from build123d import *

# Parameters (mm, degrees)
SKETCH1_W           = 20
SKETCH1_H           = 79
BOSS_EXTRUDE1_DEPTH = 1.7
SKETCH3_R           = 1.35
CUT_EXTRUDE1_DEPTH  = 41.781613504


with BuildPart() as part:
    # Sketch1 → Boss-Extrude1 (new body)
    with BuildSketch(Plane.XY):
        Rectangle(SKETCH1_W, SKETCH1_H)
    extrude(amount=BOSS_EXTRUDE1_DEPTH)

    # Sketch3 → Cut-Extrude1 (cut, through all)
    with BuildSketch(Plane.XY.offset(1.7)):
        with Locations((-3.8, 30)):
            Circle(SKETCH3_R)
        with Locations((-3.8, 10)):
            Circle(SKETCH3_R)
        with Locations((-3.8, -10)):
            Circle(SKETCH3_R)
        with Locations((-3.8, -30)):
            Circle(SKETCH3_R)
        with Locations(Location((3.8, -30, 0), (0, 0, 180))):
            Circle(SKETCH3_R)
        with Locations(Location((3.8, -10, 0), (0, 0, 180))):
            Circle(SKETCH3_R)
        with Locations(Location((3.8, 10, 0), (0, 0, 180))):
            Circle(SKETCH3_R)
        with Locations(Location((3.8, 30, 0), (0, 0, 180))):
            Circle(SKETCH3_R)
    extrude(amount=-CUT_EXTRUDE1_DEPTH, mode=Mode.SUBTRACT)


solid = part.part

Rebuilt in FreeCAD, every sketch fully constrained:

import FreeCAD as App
import Part
import Sketcher

V = App.Vector


def add_polygon(sketch, points):
    """Adds a closed chain of lines whose ends are joined by coincident constraints."""
    first, n = sketch.GeometryCount, len(points)
    for a, b in zip(points, points[1:] + points[:1]):
        sketch.addGeometry(Part.LineSegment(App.Vector(*a, 0), App.Vector(*b, 0)), False)
    for i in range(n):
        sketch.addConstraint(Sketcher.Constraint("Coincident", first + i, 2, first + (i + 1) % n, 1))

doc = App.newDocument("Part")
body = doc.addObject("PartDesign::Body", "Body")

# Sketch on XY plane
sketch1 = doc.addObject("Sketcher::SketchObject", "Sketch")
body.addObject(sketch1)
sketch1.AttachmentSupport = (doc.XY_Plane, [""])
sketch1.MapMode = "FlatFace"
add_polygon(sketch1, [(-10, 40), (-10, -40), (10, -40), (10, 40)])  # lines 0-3
sketch1.addConstraint(Sketcher.Constraint("Vertical", 0))
sketch1.addConstraint(Sketcher.Constraint("Horizontal", 1))
sketch1.addConstraint(Sketcher.Constraint("Vertical", 2))
sketch1.addConstraint(Sketcher.Constraint("Horizontal", 3))
sketch1.addConstraint(Sketcher.Constraint("Symmetric", 0, 2, 2, 2, -1, 1))
sketch1.addConstraint(Sketcher.Constraint("DistanceX", 1, 1, 1, 2, 20.0))
sketch1.addConstraint(Sketcher.Constraint("DistanceY", 0, 2, 0, 1, 79.0))
pad1 = doc.addObject("PartDesign::Pad", "Pad")
body.addObject(pad1)
pad1.Profile = sketch1
pad1.Length = 1.7

# Sketch on XY plane
sketch2 = doc.addObject("Sketcher::SketchObject", "Sketch001")
body.addObject(sketch2)
sketch2.AttachmentSupport = (doc.XY_Plane, [""])
sketch2.MapMode = "FlatFace"
sketch2.AttachmentOffset = App.Placement(V(0, 0, 1.7), App.Rotation())
sketch2.addGeometry(Part.Circle(V(-3.8, 30, 0), V(0, 0, 1), 1.4), False)
sketch2.addGeometry(Part.Circle(V(-3.8, 10, 0), V(0, 0, 1), 1.4), False)
sketch2.addGeometry(Part.Circle(V(-3.8, -10, 0), V(0, 0, 1), 1.4), False)
sketch2.addGeometry(Part.Circle(V(-3.8, -30, 0), V(0, 0, 1), 1.4), False)
sketch2.addGeometry(Part.Circle(V(3.8, -30, 0), V(0, 0, 1), 1.4), False)
sketch2.addGeometry(Part.Circle(V(3.8, -10, 0), V(0, 0, 1), 1.4), False)
sketch2.addGeometry(Part.Circle(V(3.8, 10, 0), V(0, 0, 1), 1.4), False)
sketch2.addGeometry(Part.Circle(V(3.8, 30, 0), V(0, 0, 1), 1.4), False)
sketch2.addConstraint(Sketcher.Constraint("Equal", 0, 1))
sketch2.addConstraint(Sketcher.Constraint("Equal", 1, 2))
sketch2.addConstraint(Sketcher.Constraint("Equal", 2, 3))
sketch2.addConstraint(Sketcher.Constraint("Equal", 3, 4))
sketch2.addConstraint(Sketcher.Constraint("Equal", 4, 5))
sketch2.addConstraint(Sketcher.Constraint("Equal", 5, 6))
sketch2.addConstraint(Sketcher.Constraint("Equal", 6, 7))
sketch2.addConstraint(Sketcher.Constraint("Symmetric", 0, 3, 4, 3, -1, 1))
sketch2.addConstraint(Sketcher.Constraint("Symmetric", 1, 3, 5, 3, -1, 1))
sketch2.addConstraint(Sketcher.Constraint("Symmetric", 2, 3, 6, 3, -1, 1))
sketch2.addConstraint(Sketcher.Constraint("Symmetric", 3, 3, 7, 3, -1, 1))
sketch2.addConstraint(Sketcher.Constraint("Symmetric", 3, 3, 4, 3, -2))
sketch2.addConstraint(Sketcher.Constraint("Symmetric", 2, 3, 5, 3, -2))
sketch2.addConstraint(Sketcher.Constraint("Vertical", 0, 3, 1, 3))
sketch2.addConstraint(Sketcher.Constraint("Diameter", 0, 2.7))
sketch2.addConstraint(Sketcher.Constraint("DistanceY", -1, 1, 0, 3, 30.0))
sketch2.addConstraint(Sketcher.Constraint("DistanceY", -1, 1, 1, 3, 10.0))
sketch2.addConstraint(Sketcher.Constraint("DistanceX", 0, 3, -1, 1, 3.8))
pocket1 = doc.addObject("PartDesign::Pocket", "Pocket")
body.addObject(pocket1)
pocket1.Profile = sketch2
pocket1.Type = "ThroughAll"

doc.recompute()
